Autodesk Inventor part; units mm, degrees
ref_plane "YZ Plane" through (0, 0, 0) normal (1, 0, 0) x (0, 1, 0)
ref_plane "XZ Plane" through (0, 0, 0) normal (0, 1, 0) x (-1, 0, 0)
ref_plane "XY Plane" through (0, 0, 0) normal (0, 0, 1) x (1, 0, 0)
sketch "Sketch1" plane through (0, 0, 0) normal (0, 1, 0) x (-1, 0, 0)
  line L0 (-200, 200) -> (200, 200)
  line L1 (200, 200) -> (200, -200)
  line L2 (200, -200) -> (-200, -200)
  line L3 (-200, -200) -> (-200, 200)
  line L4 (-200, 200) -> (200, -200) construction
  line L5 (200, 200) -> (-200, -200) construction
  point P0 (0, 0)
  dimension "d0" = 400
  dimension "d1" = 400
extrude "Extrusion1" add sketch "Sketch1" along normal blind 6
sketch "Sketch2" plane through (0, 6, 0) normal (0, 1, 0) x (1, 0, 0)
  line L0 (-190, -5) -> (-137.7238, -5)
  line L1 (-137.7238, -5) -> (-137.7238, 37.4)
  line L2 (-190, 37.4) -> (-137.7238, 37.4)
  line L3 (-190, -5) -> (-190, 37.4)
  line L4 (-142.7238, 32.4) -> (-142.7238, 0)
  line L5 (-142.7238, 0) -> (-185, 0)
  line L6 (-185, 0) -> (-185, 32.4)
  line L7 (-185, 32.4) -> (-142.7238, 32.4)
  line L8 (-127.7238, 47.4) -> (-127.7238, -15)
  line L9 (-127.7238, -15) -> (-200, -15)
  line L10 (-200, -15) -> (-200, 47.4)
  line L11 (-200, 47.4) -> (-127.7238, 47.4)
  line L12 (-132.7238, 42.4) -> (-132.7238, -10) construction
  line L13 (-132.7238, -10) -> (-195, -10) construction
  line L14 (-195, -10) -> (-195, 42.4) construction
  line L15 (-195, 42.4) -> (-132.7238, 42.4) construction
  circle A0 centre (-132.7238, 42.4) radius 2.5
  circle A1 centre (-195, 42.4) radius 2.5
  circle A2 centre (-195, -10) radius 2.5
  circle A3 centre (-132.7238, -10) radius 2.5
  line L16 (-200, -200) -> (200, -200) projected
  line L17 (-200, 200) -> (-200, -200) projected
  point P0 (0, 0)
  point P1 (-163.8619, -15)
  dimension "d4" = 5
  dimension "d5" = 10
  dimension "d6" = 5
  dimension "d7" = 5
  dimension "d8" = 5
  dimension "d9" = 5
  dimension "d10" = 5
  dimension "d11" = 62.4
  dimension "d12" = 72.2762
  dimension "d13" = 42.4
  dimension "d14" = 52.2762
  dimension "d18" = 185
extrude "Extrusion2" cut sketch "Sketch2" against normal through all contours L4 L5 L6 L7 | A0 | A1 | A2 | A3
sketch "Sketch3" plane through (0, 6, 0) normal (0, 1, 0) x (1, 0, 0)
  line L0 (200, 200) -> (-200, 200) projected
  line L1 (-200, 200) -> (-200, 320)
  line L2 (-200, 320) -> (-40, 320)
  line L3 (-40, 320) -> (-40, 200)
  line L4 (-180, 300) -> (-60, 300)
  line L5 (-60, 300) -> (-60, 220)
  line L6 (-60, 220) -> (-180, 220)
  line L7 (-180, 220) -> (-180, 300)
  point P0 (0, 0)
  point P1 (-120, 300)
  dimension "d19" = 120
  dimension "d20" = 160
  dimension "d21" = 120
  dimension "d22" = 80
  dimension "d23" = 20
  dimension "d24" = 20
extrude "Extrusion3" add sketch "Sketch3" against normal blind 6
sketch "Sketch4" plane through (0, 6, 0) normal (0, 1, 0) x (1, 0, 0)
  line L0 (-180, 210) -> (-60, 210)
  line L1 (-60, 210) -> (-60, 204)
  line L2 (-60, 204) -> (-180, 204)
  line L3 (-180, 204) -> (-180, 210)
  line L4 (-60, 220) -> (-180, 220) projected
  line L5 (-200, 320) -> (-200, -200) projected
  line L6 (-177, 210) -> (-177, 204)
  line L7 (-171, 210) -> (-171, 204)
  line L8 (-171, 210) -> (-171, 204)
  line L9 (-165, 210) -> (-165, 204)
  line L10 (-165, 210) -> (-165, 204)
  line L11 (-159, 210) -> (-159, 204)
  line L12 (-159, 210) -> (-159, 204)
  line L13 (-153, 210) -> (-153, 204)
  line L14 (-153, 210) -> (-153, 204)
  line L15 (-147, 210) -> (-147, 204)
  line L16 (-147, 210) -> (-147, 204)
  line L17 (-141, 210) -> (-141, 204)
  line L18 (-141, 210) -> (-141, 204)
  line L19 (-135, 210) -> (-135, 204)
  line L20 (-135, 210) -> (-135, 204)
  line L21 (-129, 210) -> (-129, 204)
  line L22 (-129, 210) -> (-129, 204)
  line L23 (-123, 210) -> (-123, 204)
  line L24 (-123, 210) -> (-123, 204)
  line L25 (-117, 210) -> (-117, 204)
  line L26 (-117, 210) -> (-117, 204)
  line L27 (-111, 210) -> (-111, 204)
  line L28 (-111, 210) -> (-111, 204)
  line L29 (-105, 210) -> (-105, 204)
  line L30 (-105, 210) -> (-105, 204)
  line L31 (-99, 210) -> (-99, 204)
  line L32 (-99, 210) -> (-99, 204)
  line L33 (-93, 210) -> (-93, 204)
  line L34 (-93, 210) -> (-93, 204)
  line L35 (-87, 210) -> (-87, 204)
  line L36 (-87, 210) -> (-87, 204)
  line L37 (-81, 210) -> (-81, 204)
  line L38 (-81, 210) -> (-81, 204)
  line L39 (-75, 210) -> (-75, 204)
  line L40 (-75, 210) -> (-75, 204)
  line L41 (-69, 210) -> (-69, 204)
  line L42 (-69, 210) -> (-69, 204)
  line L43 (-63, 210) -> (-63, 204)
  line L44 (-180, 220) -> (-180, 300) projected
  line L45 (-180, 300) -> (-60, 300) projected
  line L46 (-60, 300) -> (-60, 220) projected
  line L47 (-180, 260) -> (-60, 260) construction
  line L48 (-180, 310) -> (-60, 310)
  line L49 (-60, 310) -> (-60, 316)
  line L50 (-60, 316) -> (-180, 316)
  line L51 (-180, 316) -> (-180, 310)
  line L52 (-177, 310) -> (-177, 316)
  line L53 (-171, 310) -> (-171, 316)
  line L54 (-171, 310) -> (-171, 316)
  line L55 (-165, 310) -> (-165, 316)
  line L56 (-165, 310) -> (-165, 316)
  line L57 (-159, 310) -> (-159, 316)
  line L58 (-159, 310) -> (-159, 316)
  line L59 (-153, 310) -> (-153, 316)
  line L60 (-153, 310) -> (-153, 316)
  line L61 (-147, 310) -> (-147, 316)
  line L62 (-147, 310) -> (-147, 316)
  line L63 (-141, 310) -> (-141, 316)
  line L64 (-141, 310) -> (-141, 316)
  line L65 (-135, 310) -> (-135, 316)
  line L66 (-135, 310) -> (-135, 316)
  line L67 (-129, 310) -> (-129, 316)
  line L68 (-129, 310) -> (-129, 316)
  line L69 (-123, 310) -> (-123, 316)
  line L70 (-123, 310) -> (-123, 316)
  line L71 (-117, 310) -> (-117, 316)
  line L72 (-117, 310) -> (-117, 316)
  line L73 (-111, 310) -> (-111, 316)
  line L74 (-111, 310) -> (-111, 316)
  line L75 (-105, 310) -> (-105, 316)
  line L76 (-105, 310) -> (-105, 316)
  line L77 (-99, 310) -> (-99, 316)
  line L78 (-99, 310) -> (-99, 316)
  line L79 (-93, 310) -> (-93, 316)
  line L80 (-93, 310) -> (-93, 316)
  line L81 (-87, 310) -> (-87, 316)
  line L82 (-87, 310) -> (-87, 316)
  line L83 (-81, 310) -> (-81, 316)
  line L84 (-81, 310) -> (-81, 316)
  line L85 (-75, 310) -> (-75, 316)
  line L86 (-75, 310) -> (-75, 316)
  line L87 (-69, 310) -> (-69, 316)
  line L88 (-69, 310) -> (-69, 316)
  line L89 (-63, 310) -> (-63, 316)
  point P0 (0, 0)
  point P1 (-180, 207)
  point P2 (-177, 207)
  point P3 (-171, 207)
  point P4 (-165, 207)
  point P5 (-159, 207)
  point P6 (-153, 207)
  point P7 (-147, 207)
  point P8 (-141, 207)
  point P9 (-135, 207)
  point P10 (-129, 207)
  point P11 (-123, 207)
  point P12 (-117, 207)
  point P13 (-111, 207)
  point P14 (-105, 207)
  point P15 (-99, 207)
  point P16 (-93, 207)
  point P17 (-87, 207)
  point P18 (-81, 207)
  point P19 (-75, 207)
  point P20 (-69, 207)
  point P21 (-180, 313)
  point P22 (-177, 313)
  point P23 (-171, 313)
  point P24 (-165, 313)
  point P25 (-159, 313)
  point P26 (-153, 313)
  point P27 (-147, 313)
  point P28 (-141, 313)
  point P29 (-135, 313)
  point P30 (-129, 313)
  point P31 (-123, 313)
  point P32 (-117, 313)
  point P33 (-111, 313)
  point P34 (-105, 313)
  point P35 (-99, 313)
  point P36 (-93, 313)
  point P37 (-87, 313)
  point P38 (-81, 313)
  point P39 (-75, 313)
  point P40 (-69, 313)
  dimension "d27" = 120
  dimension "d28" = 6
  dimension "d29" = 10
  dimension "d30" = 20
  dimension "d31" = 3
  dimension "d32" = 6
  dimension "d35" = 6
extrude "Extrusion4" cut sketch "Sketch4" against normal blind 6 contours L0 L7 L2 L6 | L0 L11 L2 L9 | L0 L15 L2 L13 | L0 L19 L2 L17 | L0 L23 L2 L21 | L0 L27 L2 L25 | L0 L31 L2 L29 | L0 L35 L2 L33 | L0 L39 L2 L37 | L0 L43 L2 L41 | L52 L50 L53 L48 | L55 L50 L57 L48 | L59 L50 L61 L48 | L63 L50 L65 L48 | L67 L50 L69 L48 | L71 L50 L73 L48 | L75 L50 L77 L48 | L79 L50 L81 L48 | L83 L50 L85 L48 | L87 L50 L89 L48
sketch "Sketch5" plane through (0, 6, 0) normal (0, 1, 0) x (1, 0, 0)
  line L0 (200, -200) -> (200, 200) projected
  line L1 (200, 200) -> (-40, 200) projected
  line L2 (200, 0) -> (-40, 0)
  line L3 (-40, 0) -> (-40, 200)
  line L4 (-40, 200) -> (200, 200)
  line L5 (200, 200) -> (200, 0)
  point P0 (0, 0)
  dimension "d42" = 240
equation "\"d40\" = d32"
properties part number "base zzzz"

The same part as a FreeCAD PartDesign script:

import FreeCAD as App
import Part
import Sketcher
Q = App.Units.Quantity


def add_polygon(sketch, points):
    """Adds a closed chain of lines whose ends are joined by coincident constraints."""
    first, n = sketch.GeometryCount, len(points)
    for a, b in zip(points, points[1:] + points[:1]):
        sketch.addGeometry(Part.LineSegment(App.Vector(*a, 0), App.Vector(*b, 0)), False)
    for i in range(n):
        sketch.addConstraint(Sketcher.Constraint("Coincident", first + i, 2, first + (i + 1) % n, 1))

doc = App.newDocument("Part")
body = doc.addObject("PartDesign::Body", "Body")

# Sketch on XZ plane
sketch1 = body.newObject("Sketcher::SketchObject", "Sketch")
sketch1.AttachmentSupport = (doc.getObject("XZ_Plane"), [""])
sketch1.MapMode = "FlatFace"
add_polygon(sketch1, [(-200, 200), (200, 200), (200, -200), (-200, -200)])  # lines 0-3
sketch1.addConstraint([
    Sketcher.Constraint("Horizontal", 0),
    Sketcher.Constraint("Vertical", 1),
    Sketcher.Constraint("Horizontal", 2),
    Sketcher.Constraint("Vertical", 3),
    Sketcher.Constraint("Symmetric", 0, 2, 2, 2, -1, 1),
    Sketcher.Constraint("Equal", 2, 1),
    Sketcher.Constraint("DistanceX", 0, 1, 0, 2, Q("400 mm")),
])
pad1 = body.newObject("PartDesign::Pad", "Pad")
pad1.Profile = sketch1
pad1.Length = 6
pad1.Reversed = True

# Sketch on XZ plane
sketch2 = body.newObject("Sketcher::SketchObject", "Sketch001")
sketch2.AttachmentSupport = (doc.getObject("XZ_Plane"), [""])
sketch2.MapMode = "FlatFace"
sketch2.AttachmentOffset = App.Placement(App.Vector(0, 0, -6), App.Rotation())
add_polygon(sketch2, [(-142.7238, 0), (-142.7238, -32.4), (-185, -32.4), (-185, 0)])  # lines 0-3
sketch2.addGeometry(Part.Circle(App.Vector(-132.7238, -42.4, 0), App.Vector(0, 0, 1), 2.5), False)  # 4
sketch2.addGeometry(Part.Circle(App.Vector(-195, -42.4, 0), App.Vector(0, 0, 1), 2.5), False)  # 5
sketch2.addGeometry(Part.Circle(App.Vector(-195, 10, 0), App.Vector(0, 0, 1), 2.5), False)  # 6
sketch2.addGeometry(Part.Circle(App.Vector(-132.7238, 10, 0), App.Vector(0, 0, 1), 2.5), False)  # 7
sketch2.addConstraint([
    Sketcher.Constraint("Vertical", 0),
    Sketcher.Constraint("Horizontal", 1),
    Sketcher.Constraint("Vertical", 2),
    Sketcher.Constraint("Horizontal", 3),
    Sketcher.Constraint("Equal", 4, 5),
    Sketcher.Constraint("Equal", 5, 6),
    Sketcher.Constraint("Equal", 6, 7),
    Sketcher.Constraint("PointOnObject", 2, 2, -1),
    Sketcher.Constraint("Horizontal", 4, 3, 5, 3),
    Sketcher.Constraint("Horizontal", 6, 3, 7, 3),
    Sketcher.Constraint("Vertical", 5, 3, 6, 3),
    Sketcher.Constraint("Vertical", 4, 3, 7, 3),
    Sketcher.Constraint("Diameter", 4, Q("5 mm")),
    Sketcher.Constraint("DistanceY", -1, 1, 6, 3, Q("10 mm")),
    Sketcher.Constraint("DistanceX", 1, 2, -1, 1, Q("185 mm")),
    Sketcher.Constraint("DistanceX", 0, 2, 4, 3, Q("10 mm")),
    Sketcher.Constraint("DistanceY", 4, 3, 0, 2, Q("10 mm")),
    Sketcher.Constraint("DistanceX", 5, 3, 1, 2, Q("10 mm")),
    Sketcher.Constraint("DistanceY", 4, 3, -1, 1, Q("42.4 mm")),
    Sketcher.Constraint("DistanceX", 5, 3, 0, 2, Q("52.2762 mm")),
])
pocket1 = body.newObject("PartDesign::Pocket", "Pocket")
pocket1.Profile = sketch2
pocket1.Type = "ThroughAll"
pocket1.Reversed = True

# Sketch on XZ plane
sketch3 = body.newObject("Sketcher::SketchObject", "Sketch002")
sketch3.AttachmentSupport = (doc.getObject("XZ_Plane"), [""])
sketch3.MapMode = "FlatFace"
sketch3.AttachmentOffset = App.Placement(App.Vector(0, 0, -6), App.Rotation())
add_polygon(sketch3, [(-200, -200), (-40, -200), (-40, -320), (-200, -320)])  # lines 0-3
add_polygon(sketch3, [(-180, -220), (-180, -300), (-60, -300), (-60, -220)])  # lines 4-7
sketch3.addConstraint([
    Sketcher.Constraint("Horizontal", 0),
    Sketcher.Constraint("Vertical", 1),
    Sketcher.Constraint("Horizontal", 2),
    Sketcher.Constraint("Vertical", 3),
    Sketcher.Constraint("Vertical", 4),
    Sketcher.Constraint("Horizontal", 5),
    Sketcher.Constraint("Vertical", 6),
    Sketcher.Constraint("Horizontal", 7),
    Sketcher.Constraint("Equal", 7, 1),
    Sketcher.Constraint("DistanceX", 0, 1, 0, 2, Q("160 mm")),
    Sketcher.Constraint("DistanceX", 5, 1, 5, 2, Q("120 mm")),
    Sketcher.Constraint("DistanceY", 4, 2, 4, 1, Q("80 mm")),
    Sketcher.Constraint("DistanceX", 2, 2, 4, 2, Q("20 mm")),
    Sketcher.Constraint("DistanceY", 2, 2, 4, 2, Q("20 mm")),
    Sketcher.Constraint("DistanceX", 0, 2, -1, 1, Q("40 mm")),
    Sketcher.Constraint("DistanceY", 0, 2, -1, 1, Q("200 mm")),
])
pad2 = body.newObject("PartDesign::Pad", "Pad001")
pad2.Profile = sketch3
pad2.Length = 6

# Sketch on XZ plane
sketch4 = body.newObject("Sketcher::SketchObject", "Sketch003")
sketch4.AttachmentSupport = (doc.getObject("XZ_Plane"), [""])
sketch4.MapMode = "FlatFace"
sketch4.AttachmentOffset = App.Placement(App.Vector(0, 0, -6), App.Rotation())
add_polygon(sketch4, [(-171, -210), (-177, -210), (-177, -204), (-171, -204)])  # lines 0-3
add_polygon(sketch4, [(-159, -210), (-165, -210), (-165, -204), (-159, -204)])  # lines 4-7
add_polygon(sketch4, [(-147, -210), (-153, -210), (-153, -204), (-147, -204)])  # lines 8-11
add_polygon(sketch4, [(-135, -210), (-141, -210), (-141, -204), (-135, -204)])  # lines 12-15
add_polygon(sketch4, [(-123, -210), (-129, -210), (-129, -204), (-123, -204)])  # lines 16-19
add_polygon(sketch4, [(-111, -210), (-117, -210), (-117, -204), (-111, -204)])  # lines 20-23
add_polygon(sketch4, [(-99, -210), (-105, -210), (-105, -204), (-99, -204)])  # lines 24-27
add_polygon(sketch4, [(-87, -210), (-93, -210), (-93, -204), (-87, -204)])  # lines 28-31
add_polygon(sketch4, [(-75, -210), (-81, -210), (-81, -204), (-75, -204)])  # lines 32-35
add_polygon(sketch4, [(-63, -210), (-69, -210), (-69, -204), (-63, -204)])  # lines 36-39
add_polygon(sketch4, [(-177, -316), (-177, -310), (-171, -310), (-171, -316)])  # lines 40-43
add_polygon(sketch4, [(-165, -316), (-165, -310), (-159, -310), (-159, -316)])  # lines 44-47
add_polygon(sketch4, [(-153, -316), (-153, -310), (-147, -310), (-147, -316)])  # lines 48-51
add_polygon(sketch4, [(-141, -316), (-141, -310), (-135, -310), (-135, -316)])  # lines 52-55
add_polygon(sketch4, [(-129, -316), (-129, -310), (-123, -310), (-123, -316)])  # lines 56-59
add_polygon(sketch4, [(-117, -316), (-117, -310), (-111, -310), (-111, -316)])  # lines 60-63
add_polygon(sketch4, [(-105, -316), (-105, -310), (-99, -310), (-99, -316)])  # lines 64-67
add_polygon(sketch4, [(-93, -316), (-93, -310), (-87, -310), (-87, -316)])  # lines 68-71
add_polygon(sketch4, [(-81, -316), (-81, -310), (-75, -310), (-75, -316)])  # lines 72-75
add_polygon(sketch4, [(-69, -316), (-69, -310), (-63, -310), (-63, -316)])  # lines 76-79
sketch4.addConstraint([
    Sketcher.Constraint("Horizontal", 0),
    Sketcher.Constraint("Vertical", 1),
    Sketcher.Constraint("Horizontal", 2),
    Sketcher.Constraint("Vertical", 3),
    Sketcher.Constraint("Horizontal", 4),
    Sketcher.Constraint("Vertical", 5),
    Sketcher.Constraint("Horizontal", 6),
    Sketcher.Constraint("Vertical", 7),
    Sketcher.Constraint("Horizontal", 8),
    Sketcher.Constraint("Vertical", 9),
    Sketcher.Constraint("Horizontal", 10),
    Sketcher.Constraint("Vertical", 11),
    Sketcher.Constraint("Horizontal", 12),
    Sketcher.Constraint("Vertical", 13),
    Sketcher.Constraint("Horizontal", 14),
    Sketcher.Constraint("Vertical", 15),
    Sketcher.Constraint("Horizontal", 16),
    Sketcher.Constraint("Vertical", 17),
    Sketcher.Constraint("Horizontal", 18),
    Sketcher.Constraint("Vertical", 19),
    Sketcher.Constraint("Horizontal", 20),
    Sketcher.Constraint("Vertical", 21),
    Sketcher.Constraint("Horizontal", 22),
    Sketcher.Constraint("Vertical", 23),
    Sketcher.Constraint("Horizontal", 24),
    Sketcher.Constraint("Vertical", 25),
    Sketcher.Constraint("Horizontal", 26),
    Sketcher.Constraint("Vertical", 27),
    Sketcher.Constraint("Horizontal", 28),
    Sketcher.Constraint("Vertical", 29),
    Sketcher.Constraint("Horizontal", 30),
    Sketcher.Constraint("Vertical", 31),
    Sketcher.Constraint("Horizontal", 32),
    Sketcher.Constraint("Vertical", 33),
    Sketcher.Constraint("Horizontal", 34),
    Sketcher.Constraint("Vertical", 35),
    Sketcher.Constraint("Horizontal", 36),
    Sketcher.Constraint("Vertical", 37),
    Sketcher.Constraint("Horizontal", 38),
    Sketcher.Constraint("Vertical", 39),
    Sketcher.Constraint("Vertical", 40),
    Sketcher.Constraint("Horizontal", 41),
    Sketcher.Constraint("Vertical", 42),
    Sketcher.Constraint("Horizontal", 43),
    Sketcher.Constraint("Vertical", 44),
    Sketcher.Constraint("Horizontal", 45),
    Sketcher.Constraint("Vertical", 46),
    Sketcher.Constraint("Horizontal", 47),
    Sketcher.Constraint("Vertical", 48),
    Sketcher.Constraint("Horizontal", 49),
    Sketcher.Constraint("Vertical", 50),
    Sketcher.Constraint("Horizontal", 51),
    Sketcher.Constraint("Vertical", 52),
    Sketcher.Constraint("Horizontal", 53),
    Sketcher.Constraint("Vertical", 54),
    Sketcher.Constraint("Horizontal", 55),
    Sketcher.Constraint("Vertical", 56),
    Sketcher.Constraint("Horizontal", 57),
    Sketcher.Constraint("Vertical", 58),
    Sketcher.Constraint("Horizontal", 59),
    Sketcher.Constraint("Vertical", 60),
    Sketcher.Constraint("Horizontal", 61),
    Sketcher.Constraint("Vertical", 62),
    Sketcher.Constraint("Horizontal", 63),
    Sketcher.Constraint("Vertical", 64),
    Sketcher.Constraint("Horizontal", 65),
    Sketcher.Constraint("Vertical", 66),
    Sketcher.Constraint("Horizontal", 67),
    Sketcher.Constraint("Vertical", 68),
    Sketcher.Constraint("Horizontal", 69),
    Sketcher.Constraint("Vertical", 70),
    Sketcher.Constraint("Horizontal", 71),
    Sketcher.Constraint("Vertical", 72),
    Sketcher.Constraint("Horizontal", 73),
    Sketcher.Constraint("Vertical", 74),
    Sketcher.Constraint("Horizontal", 75),
    Sketcher.Constraint("Vertical", 76),
    Sketcher.Constraint("Horizontal", 77),
    Sketcher.Constraint("Vertical", 78),
    Sketcher.Constraint("Horizontal", 79),
    Sketcher.Constraint("Horizontal", 3, 2, 4, 2),
    Sketcher.Constraint("Horizontal", 2, 2, 5, 2),
    Sketcher.Constraint("Horizontal", 7, 2, 8, 2),
    Sketcher.Constraint("Horizontal", 6, 2, 9, 2),
    Sketcher.Constraint("Horizontal", 11, 2, 12, 2),
    Sketcher.Constraint("Horizontal", 10, 2, 13, 2),
    Sketcher.Constraint("Horizontal", 15, 2, 16, 2),
    Sketcher.Constraint("Horizontal", 14, 2, 17, 2),
    Sketcher.Constraint("Horizontal", 19, 2, 20, 2),
    Sketcher.Constraint("Horizontal", 18, 2, 21, 2),
    Sketcher.Constraint("Horizontal", 23, 2, 24, 2),
    Sketcher.Constraint("Horizontal", 22, 2, 25, 2),
    Sketcher.Constraint("Horizontal", 27, 2, 28, 2),
    Sketcher.Constraint("Horizontal", 26, 2, 29, 2),
    Sketcher.Constraint("Horizontal", 31, 2, 32, 2),
    Sketcher.Constraint("Horizontal", 30, 2, 33, 2),
    Sketcher.Constraint("Horizontal", 35, 2, 36, 2),
    Sketcher.Constraint("Horizontal", 34, 2, 37, 2),
    Sketcher.Constraint("Horizontal", 41, 2, 44, 2),
    Sketcher.Constraint("Horizontal", 43, 2, 46, 2),
    Sketcher.Constraint("Horizontal", 45, 2, 48, 2),
    Sketcher.Constraint("Horizontal", 47, 2, 50, 2),
    Sketcher.Constraint("Horizontal", 49, 2, 52, 2),
    Sketcher.Constraint("Horizontal", 51, 2, 54, 2),
    Sketcher.Constraint("Horizontal", 53, 2, 56, 2),
    Sketcher.Constraint("Horizontal", 55, 2, 58, 2),
    Sketcher.Constraint("Horizontal", 57, 2, 60, 2),
    Sketcher.Constraint("Horizontal", 59, 2, 62, 2),
    Sketcher.Constraint("Horizontal", 61, 2, 64, 2),
    Sketcher.Constraint("Horizontal", 63, 2, 66, 2),
    Sketcher.Constraint("Horizontal", 65, 2, 68, 2),
    Sketcher.Constraint("Horizontal", 67, 2, 70, 2),
    Sketcher.Constraint("Horizontal", 69, 2, 72, 2),
    Sketcher.Constraint("Horizontal", 71, 2, 74, 2),
    Sketcher.Constraint("Horizontal", 73, 2, 76, 2),
    Sketcher.Constraint("Horizontal", 75, 2, 78, 2),
    Sketcher.Constraint("Vertical", 1, 2, 40, 2),
    Sketcher.Constraint("Vertical", 3, 2, 41, 2),
    Sketcher.Constraint("Vertical", 5, 2, 44, 2),
    Sketcher.Constraint("Vertical", 7, 2, 45, 2),
    Sketcher.Constraint("Vertical", 9, 2, 48, 2),
    Sketcher.Constraint("Vertical", 11, 2, 49, 2),
    Sketcher.Constraint("Vertical", 13, 2, 52, 2),
    Sketcher.Constraint("Vertical", 15, 2, 53, 2),
    Sketcher.Constraint("Vertical", 17, 2, 56, 2),
    Sketcher.Constraint("Vertical", 19, 2, 57, 2),
    Sketcher.Constraint("Vertical", 21, 2, 60, 2),
    Sketcher.Constraint("Vertical", 23, 2, 61, 2),
    Sketcher.Constraint("Vertical", 25, 2, 64, 2),
    Sketcher.Constraint("Vertical", 27, 2, 65, 2),
    Sketcher.Constraint("Vertical", 29, 2, 68, 2),
    Sketcher.Constraint("Vertical", 31, 2, 69, 2),
    Sketcher.Constraint("Vertical", 33, 2, 72, 2),
    Sketcher.Constraint("Vertical", 35, 2, 73, 2),
    Sketcher.Constraint("Vertical", 37, 2, 76, 2),
    Sketcher.Constraint("Vertical", 39, 2, 77, 2),
    Sketcher.Constraint("Equal", 2, 4),
    Sketcher.Constraint("Equal", 6, 8),
    Sketcher.Constraint("Equal", 10, 12),
    Sketcher.Constraint("Equal", 14, 16),
    Sketcher.Constraint("Equal", 18, 20),
    Sketcher.Constraint("Equal", 22, 24),
    Sketcher.Constraint("Equal", 26, 28),
    Sketcher.Constraint("Equal", 30, 32),
    Sketcher.Constraint("Equal", 34, 36),
    Sketcher.Constraint("Equal", 79, 1),
    Sketcher.Constraint("Equal", 39, 40),
    Sketcher.Constraint("DistanceX", 0, 2, 0, 1, Q("6 mm")),
    Sketcher.Constraint("DistanceX", 0, 2, -1, 1, Q("177 mm")),
    Sketcher.Constraint("DistanceY", 0, 2, -1, 1, Q("210 mm")),
    Sketcher.Constraint("DistanceX", 4, 2, -1, 1, Q("165 mm")),
    Sketcher.Constraint("DistanceX", 8, 2, -1, 1, Q("153 mm")),
    Sketcher.Constraint("DistanceX", 12, 2, -1, 1, Q("141 mm")),
    Sketcher.Constraint("DistanceX", 16, 2, -1, 1, Q("129 mm")),
    Sketcher.Constraint("DistanceX", 20, 2, -1, 1, Q("117 mm")),
    Sketcher.Constraint("DistanceX", 24, 2, -1, 1, Q("105 mm")),
    Sketcher.Constraint("DistanceX", 28, 2, -1, 1, Q("93 mm")),
    Sketcher.Constraint("DistanceX", 32, 2, -1, 1, Q("81 mm")),
    Sketcher.Constraint("DistanceX", 36, 2, -1, 1, Q("69 mm")),
    Sketcher.Constraint("DistanceY", 40, 2, -1, 1, Q("310 mm")),
])
pocket2 = body.newObject("PartDesign::Pocket", "Pocket001")
pocket2.Profile = sketch4
pocket2.Length = 6
pocket2.Reversed = True

doc.recompute()
